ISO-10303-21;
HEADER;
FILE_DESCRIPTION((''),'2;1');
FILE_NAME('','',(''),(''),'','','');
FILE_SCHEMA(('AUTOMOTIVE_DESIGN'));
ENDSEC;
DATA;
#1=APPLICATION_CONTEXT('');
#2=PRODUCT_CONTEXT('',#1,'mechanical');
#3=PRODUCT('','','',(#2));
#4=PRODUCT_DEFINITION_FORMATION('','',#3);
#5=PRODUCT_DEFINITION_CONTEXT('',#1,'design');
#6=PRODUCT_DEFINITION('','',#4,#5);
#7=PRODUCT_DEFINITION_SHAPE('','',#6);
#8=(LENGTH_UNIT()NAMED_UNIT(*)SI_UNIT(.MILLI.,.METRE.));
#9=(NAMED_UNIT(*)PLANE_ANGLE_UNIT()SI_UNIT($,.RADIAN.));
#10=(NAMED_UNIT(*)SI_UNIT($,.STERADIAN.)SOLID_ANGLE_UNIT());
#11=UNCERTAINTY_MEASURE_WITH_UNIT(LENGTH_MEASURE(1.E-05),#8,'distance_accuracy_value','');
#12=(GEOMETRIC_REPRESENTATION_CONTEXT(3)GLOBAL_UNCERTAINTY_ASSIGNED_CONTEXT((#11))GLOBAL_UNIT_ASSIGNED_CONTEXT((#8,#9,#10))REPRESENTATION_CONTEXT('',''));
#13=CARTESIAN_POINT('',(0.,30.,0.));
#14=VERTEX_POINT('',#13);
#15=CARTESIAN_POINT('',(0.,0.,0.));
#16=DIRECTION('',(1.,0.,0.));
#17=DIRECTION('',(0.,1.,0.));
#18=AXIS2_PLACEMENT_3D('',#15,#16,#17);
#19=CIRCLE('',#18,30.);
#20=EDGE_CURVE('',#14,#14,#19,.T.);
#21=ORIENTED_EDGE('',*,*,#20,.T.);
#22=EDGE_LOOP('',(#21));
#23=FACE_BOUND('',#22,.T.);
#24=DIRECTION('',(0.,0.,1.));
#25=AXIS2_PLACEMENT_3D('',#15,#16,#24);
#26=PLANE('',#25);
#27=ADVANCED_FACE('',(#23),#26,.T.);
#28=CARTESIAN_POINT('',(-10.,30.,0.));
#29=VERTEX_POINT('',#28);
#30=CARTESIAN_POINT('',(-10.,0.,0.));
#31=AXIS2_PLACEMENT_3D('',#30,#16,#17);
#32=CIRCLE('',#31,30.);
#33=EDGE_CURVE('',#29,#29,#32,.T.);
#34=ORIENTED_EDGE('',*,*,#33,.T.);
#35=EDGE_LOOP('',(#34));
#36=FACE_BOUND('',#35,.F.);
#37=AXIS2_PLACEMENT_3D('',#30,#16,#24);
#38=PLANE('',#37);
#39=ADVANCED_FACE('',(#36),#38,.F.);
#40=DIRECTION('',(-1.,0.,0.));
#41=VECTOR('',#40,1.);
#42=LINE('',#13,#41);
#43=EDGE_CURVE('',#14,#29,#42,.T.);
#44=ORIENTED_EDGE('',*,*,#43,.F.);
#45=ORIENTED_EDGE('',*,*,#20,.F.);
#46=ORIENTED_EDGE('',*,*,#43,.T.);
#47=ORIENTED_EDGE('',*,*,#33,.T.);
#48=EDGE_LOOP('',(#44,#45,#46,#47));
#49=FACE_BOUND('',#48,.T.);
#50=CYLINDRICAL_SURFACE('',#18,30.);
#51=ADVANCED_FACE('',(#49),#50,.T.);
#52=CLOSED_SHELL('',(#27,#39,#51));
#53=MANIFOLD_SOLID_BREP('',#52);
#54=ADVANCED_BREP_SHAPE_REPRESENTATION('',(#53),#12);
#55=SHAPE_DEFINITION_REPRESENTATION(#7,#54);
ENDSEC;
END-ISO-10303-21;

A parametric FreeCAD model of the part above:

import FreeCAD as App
import Part
import Sketcher
from FreeCAD import Vector

doc = App.newDocument("Part")
body = doc.addObject("PartDesign::Body", "Body")

# Sketch on YZ plane
sketch1 = body.newObject("Sketcher::SketchObject", "Sketch")
sketch1.AttachmentSupport = (doc.getObject("YZ_Plane"), [""])
sketch1.MapMode = "FlatFace"
sketch1.addGeometry(Part.Circle(Vector(0, 0, 0), Vector(0, 0, 1), 30), False)
sketch1.addConstraint([
    Sketcher.Constraint("Coincident", 0, 3, -1, 1),
    Sketcher.Constraint("Diameter", 0, 60.0),
])
pad1 = body.newObject("PartDesign::Pad", "Pad")
pad1.Profile = sketch1
pad1.Length = 10
pad1.Reversed = True

doc.recompute()
